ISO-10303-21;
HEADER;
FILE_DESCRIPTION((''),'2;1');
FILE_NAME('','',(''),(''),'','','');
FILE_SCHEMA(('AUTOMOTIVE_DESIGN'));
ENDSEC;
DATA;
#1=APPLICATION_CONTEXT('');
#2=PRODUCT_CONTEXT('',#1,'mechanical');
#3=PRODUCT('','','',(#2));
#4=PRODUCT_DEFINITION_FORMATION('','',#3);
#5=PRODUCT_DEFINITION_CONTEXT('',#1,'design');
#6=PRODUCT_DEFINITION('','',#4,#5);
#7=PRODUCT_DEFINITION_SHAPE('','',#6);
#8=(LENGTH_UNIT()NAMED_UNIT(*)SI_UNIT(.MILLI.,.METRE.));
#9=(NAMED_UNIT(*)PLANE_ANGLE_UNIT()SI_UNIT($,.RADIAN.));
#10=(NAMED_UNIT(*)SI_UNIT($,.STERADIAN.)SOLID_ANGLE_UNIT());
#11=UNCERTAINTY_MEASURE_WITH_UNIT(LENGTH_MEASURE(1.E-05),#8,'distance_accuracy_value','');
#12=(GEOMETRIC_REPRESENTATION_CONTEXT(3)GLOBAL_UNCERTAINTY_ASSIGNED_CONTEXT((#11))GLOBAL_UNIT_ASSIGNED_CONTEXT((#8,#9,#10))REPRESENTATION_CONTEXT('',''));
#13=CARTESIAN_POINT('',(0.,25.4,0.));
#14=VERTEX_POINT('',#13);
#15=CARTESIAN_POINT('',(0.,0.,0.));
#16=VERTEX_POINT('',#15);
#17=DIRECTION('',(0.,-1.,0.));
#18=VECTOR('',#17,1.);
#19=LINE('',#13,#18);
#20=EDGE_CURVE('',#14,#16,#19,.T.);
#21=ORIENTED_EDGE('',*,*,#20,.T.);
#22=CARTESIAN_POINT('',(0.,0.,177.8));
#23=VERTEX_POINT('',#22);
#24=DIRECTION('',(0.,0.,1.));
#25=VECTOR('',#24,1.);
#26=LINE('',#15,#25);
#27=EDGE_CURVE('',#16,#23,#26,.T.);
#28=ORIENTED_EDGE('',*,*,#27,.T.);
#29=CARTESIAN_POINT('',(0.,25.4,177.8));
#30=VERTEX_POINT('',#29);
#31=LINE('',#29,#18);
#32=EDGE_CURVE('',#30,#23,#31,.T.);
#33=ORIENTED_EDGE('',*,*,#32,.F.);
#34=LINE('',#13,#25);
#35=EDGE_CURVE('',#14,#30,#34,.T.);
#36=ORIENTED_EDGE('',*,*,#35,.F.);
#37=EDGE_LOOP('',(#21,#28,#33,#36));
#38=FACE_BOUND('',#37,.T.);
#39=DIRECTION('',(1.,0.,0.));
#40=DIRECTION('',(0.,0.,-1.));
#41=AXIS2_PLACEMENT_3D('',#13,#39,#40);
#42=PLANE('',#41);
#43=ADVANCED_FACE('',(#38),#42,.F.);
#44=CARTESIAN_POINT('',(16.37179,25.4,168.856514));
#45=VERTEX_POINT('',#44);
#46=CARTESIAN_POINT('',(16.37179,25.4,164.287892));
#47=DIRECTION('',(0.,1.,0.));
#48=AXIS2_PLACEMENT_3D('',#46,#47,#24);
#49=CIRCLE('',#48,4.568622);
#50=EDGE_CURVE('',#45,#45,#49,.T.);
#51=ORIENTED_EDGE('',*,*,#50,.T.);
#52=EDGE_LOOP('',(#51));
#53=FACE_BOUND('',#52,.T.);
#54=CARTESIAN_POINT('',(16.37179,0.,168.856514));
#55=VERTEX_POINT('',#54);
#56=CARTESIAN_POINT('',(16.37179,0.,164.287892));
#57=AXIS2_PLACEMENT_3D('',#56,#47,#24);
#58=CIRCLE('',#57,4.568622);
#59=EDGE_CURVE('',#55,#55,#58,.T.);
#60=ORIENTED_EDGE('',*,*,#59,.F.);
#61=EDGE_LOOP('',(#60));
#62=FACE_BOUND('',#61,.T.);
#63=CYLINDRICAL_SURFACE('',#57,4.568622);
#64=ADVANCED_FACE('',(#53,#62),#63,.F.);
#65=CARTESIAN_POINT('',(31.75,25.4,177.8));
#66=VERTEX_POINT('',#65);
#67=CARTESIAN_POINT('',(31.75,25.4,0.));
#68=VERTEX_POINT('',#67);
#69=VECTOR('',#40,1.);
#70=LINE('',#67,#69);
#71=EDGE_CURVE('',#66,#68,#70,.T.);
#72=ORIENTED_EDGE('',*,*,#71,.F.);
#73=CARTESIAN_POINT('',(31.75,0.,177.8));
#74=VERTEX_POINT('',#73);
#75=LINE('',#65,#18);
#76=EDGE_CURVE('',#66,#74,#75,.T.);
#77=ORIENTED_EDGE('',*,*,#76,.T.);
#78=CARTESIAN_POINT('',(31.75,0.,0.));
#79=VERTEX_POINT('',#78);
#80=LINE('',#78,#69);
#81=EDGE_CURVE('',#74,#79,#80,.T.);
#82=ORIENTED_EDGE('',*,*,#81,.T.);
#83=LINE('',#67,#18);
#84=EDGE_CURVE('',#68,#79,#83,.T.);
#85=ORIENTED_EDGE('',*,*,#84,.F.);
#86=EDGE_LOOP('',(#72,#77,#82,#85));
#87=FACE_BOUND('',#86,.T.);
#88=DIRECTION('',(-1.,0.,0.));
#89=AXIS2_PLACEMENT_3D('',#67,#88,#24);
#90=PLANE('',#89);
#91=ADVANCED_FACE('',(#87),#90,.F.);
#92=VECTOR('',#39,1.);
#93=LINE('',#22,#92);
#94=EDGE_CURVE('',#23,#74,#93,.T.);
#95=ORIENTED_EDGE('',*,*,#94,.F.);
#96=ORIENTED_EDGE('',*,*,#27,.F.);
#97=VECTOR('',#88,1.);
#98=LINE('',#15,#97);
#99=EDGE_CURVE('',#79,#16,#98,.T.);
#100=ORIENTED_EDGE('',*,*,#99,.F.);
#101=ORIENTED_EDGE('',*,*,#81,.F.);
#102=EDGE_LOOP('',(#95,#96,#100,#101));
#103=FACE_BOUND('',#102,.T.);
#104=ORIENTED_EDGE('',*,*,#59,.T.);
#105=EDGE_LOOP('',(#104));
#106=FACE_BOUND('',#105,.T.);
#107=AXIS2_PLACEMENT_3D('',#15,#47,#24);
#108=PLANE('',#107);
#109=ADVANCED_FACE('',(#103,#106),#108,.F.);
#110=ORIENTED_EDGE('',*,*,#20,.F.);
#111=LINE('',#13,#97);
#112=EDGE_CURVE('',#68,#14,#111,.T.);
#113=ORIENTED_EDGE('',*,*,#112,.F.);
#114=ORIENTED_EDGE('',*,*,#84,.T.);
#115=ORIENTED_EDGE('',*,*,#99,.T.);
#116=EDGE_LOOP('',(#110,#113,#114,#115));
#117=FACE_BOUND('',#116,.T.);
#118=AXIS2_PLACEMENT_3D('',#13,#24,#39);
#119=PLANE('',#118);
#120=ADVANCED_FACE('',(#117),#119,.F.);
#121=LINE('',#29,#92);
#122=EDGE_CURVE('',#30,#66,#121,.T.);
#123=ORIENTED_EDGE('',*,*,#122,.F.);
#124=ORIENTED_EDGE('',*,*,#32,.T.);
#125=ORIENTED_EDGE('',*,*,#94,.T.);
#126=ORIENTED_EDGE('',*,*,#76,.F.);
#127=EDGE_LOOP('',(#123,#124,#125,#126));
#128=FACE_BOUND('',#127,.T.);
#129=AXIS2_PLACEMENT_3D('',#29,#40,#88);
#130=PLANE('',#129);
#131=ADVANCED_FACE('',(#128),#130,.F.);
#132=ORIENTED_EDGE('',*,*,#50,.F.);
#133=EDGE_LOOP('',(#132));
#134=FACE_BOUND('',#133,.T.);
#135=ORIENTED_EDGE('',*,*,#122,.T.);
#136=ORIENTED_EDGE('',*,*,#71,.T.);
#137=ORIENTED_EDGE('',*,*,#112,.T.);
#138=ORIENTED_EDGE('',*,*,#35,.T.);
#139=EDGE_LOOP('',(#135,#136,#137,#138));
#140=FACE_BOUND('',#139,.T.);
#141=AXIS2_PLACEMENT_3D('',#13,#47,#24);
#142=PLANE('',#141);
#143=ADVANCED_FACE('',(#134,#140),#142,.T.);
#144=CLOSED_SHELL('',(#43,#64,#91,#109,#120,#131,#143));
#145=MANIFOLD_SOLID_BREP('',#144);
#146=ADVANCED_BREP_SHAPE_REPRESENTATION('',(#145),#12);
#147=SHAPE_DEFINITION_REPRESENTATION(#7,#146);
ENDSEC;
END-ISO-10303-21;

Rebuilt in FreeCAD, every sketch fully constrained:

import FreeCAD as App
import Part
import Sketcher

V = App.Vector
Q = App.Units.Quantity


def add_polygon(sketch, points):
    """Adds a closed chain of lines whose ends are joined by coincident constraints."""
    first, n = sketch.GeometryCount, len(points)
    for a, b in zip(points, points[1:] + points[:1]):
        sketch.addGeometry(Part.LineSegment(App.Vector(*a, 0), App.Vector(*b, 0)), False)
    for i in range(n):
        sketch.addConstraint(Sketcher.Constraint("Coincident", first + i, 2, first + (i + 1) % n, 1))

doc = App.newDocument("Part")
body = doc.addObject("PartDesign::Body", "Body")

sketch1 = body.newObject("Sketcher::SketchObject", "Sketch")
sketch1.AttachmentSupport = (doc.getObject("XZ_Plane"), [""])
sketch1.MapMode = "FlatFace"
add_polygon(sketch1, [(0, 0), (0, 178), (32, 178), (32, 0)])
sketch1.addConstraint([
    Sketcher.Constraint("Vertical", 0),
    Sketcher.Constraint("Horizontal", 1),
    Sketcher.Constraint("Vertical", 2),
    Sketcher.Constraint("Horizontal", 3),
    Sketcher.Constraint("Coincident", 3, 2, -1, 1),
    Sketcher.Constraint("DistanceY", 0, 1, 0, 2, Q("7 in")),
    Sketcher.Constraint("DistanceX", 1, 1, 1, 2, Q("1.25 in")),
])
pad1 = body.newObject("PartDesign::Pad", "Pad")
pad1.Profile = sketch1
pad1.Length = Q("1 in")
pad1.Reversed = True

sketch2 = body.newObject("Sketcher::SketchObject", "Sketch001")
sketch2.AttachmentSupport = (doc.getObject("XZ_Plane"), [""])
sketch2.MapMode = "FlatFace"
sketch2.AttachmentOffset = App.Placement(V(0, 0, -1 * 25.4), App.Rotation())
sketch2.addGeometry(Part.Circle(V(16.4, 164.3, 0), V(0, 0, 1), 4.6), False)
sketch2.addConstraint([
    Sketcher.Constraint("Diameter", 0, Q("9.137243 mm")),
    Sketcher.Constraint("DistanceX", -1, 1, 0, 3, Q("16.37179 mm")),
    Sketcher.Constraint("DistanceY", -1, 1, 0, 3, Q("164.287892 mm")),
])
pocket1 = body.newObject("PartDesign::Pocket", "Pocket")
pocket1.Profile = sketch2
pocket1.Length = Q("1 in")
pocket1.Reversed = True

doc.recompute()
